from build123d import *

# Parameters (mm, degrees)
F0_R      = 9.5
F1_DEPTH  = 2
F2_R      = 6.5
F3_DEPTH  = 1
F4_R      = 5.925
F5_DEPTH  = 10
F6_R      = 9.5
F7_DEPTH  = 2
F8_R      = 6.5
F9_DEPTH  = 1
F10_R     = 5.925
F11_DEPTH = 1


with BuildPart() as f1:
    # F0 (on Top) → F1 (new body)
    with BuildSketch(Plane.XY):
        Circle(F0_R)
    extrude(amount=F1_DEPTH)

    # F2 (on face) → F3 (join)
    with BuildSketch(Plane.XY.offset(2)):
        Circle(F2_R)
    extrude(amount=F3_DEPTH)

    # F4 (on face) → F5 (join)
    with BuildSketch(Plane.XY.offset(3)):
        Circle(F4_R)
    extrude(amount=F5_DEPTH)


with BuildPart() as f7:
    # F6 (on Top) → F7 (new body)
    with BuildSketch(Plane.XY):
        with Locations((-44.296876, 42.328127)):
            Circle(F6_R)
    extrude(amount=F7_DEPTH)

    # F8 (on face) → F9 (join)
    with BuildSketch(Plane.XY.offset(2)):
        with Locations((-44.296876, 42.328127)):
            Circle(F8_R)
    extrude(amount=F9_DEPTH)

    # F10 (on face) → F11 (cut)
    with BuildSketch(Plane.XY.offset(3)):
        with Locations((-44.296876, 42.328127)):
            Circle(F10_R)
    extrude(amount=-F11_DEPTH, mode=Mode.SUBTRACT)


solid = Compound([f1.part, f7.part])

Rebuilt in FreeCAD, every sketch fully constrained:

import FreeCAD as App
import Part
import Sketcher

V = App.Vector
Q = App.Units.Quantity

doc = App.newDocument("Part")
body = doc.addObject("PartDesign::Body", "Body")

# Sketch on XY plane
sketch1 = body.newObject("Sketcher::SketchObject", "Sketch")
sketch1.AttachmentSupport = (doc.getObject("XY_Plane"), [""])
sketch1.MapMode = "FlatFace"
sketch1.addGeometry(Part.Circle(V(0, 0, 0), V(0, 0, 1), 9.5), False)
sketch1.addConstraint([
    Sketcher.Constraint("Coincident", 0, 3, -1, 1),
    Sketcher.Constraint("Diameter", 0, Q("19 mm")),
])
pad1 = body.newObject("PartDesign::Pad", "Pad")
pad1.Profile = sketch1
pad1.Length = 2

# Sketch on XY plane
sketch2 = body.newObject("Sketcher::SketchObject", "Sketch001")
sketch2.AttachmentSupport = (doc.getObject("XY_Plane"), [""])
sketch2.MapMode = "FlatFace"
sketch2.AttachmentOffset = App.Placement(V(0, 0, 2), App.Rotation())
sketch2.addGeometry(Part.Circle(V(0, 0, 0), V(0, 0, 1), 6.5), False)
sketch2.addConstraint([
    Sketcher.Constraint("Coincident", 0, 3, -1, 1),
    Sketcher.Constraint("Diameter", 0, Q("13 mm")),
])
pad2 = body.newObject("PartDesign::Pad", "Pad001")
pad2.Profile = sketch2
pad2.Length = 1

# Sketch on XY plane
sketch3 = body.newObject("Sketcher::SketchObject", "Sketch002")
sketch3.AttachmentSupport = (doc.getObject("XY_Plane"), [""])
sketch3.MapMode = "FlatFace"
sketch3.AttachmentOffset = App.Placement(V(0, 0, 3), App.Rotation())
sketch3.addGeometry(Part.Circle(V(0, 0, 0), V(0, 0, 1), 5.925), False)
sketch3.addConstraint([
    Sketcher.Constraint("Coincident", 0, 3, -1, 1),
    Sketcher.Constraint("Diameter", 0, Q("11.85 mm")),
])
pad3 = body.newObject("PartDesign::Pad", "Pad002")
pad3.Profile = sketch3
pad3.Length = 10
body2 = doc.addObject("PartDesign::Body", "Body001")

# Sketch on XY plane
sketch4 = body2.newObject("Sketcher::SketchObject", "Sketch003")
sketch4.AttachmentSupport = (doc.getObject("XY_Plane001"), [""])
sketch4.MapMode = "FlatFace"
sketch4.addGeometry(Part.Circle(V(-44.296876, 42.328127, 0), V(0, 0, 1), 9.5), False)
sketch4.addConstraint([
    Sketcher.Constraint("Diameter", 0, Q("19 mm")),
    Sketcher.Constraint("DistanceX", 0, 3, -1, 1, Q("44.296876 mm")),
    Sketcher.Constraint("DistanceY", -1, 1, 0, 3, Q("42.328127 mm")),
])
pad4 = body2.newObject("PartDesign::Pad", "Pad003")
pad4.Profile = sketch4
pad4.Length = 2

# Sketch on XY plane
sketch5 = body2.newObject("Sketcher::SketchObject", "Sketch004")
sketch5.AttachmentSupport = (doc.getObject("XY_Plane001"), [""])
sketch5.MapMode = "FlatFace"
sketch5.AttachmentOffset = App.Placement(V(0, 0, 2), App.Rotation())
sketch5.addGeometry(Part.Circle(V(-44.296876, 42.328127, 0), V(0, 0, 1), 6.5), False)
sketch5.addConstraint([
    Sketcher.Constraint("Diameter", 0, Q("13 mm")),
    Sketcher.Constraint("DistanceX", 0, 3, -1, 1, Q("44.296876 mm")),
    Sketcher.Constraint("DistanceY", -1, 1, 0, 3, Q("42.328127 mm")),
])
pad5 = body2.newObject("PartDesign::Pad", "Pad004")
pad5.Profile = sketch5
pad5.Length = 1

# Sketch on XY plane
sketch6 = body2.newObject("Sketcher::SketchObject", "Sketch005")
sketch6.AttachmentSupport = (doc.getObject("XY_Plane001"), [""])
sketch6.MapMode = "FlatFace"
sketch6.AttachmentOffset = App.Placement(V(0, 0, 3), App.Rotation())
sketch6.addGeometry(Part.Circle(V(-44.296876, 42.328127, 0), V(0, 0, 1), 5.925), False)
sketch6.addConstraint([
    Sketcher.Constraint("Diameter", 0, Q("11.85 mm")),
    Sketcher.Constraint("DistanceX", 0, 3, -1, 1, Q("44.296876 mm")),
    Sketcher.Constraint("DistanceY", -1, 1, 0, 3, Q("42.328127 mm")),
])
pocket1 = body2.newObject("PartDesign::Pocket", "Pocket")
pocket1.Profile = sketch6
pocket1.Length = 1

doc.recompute()
